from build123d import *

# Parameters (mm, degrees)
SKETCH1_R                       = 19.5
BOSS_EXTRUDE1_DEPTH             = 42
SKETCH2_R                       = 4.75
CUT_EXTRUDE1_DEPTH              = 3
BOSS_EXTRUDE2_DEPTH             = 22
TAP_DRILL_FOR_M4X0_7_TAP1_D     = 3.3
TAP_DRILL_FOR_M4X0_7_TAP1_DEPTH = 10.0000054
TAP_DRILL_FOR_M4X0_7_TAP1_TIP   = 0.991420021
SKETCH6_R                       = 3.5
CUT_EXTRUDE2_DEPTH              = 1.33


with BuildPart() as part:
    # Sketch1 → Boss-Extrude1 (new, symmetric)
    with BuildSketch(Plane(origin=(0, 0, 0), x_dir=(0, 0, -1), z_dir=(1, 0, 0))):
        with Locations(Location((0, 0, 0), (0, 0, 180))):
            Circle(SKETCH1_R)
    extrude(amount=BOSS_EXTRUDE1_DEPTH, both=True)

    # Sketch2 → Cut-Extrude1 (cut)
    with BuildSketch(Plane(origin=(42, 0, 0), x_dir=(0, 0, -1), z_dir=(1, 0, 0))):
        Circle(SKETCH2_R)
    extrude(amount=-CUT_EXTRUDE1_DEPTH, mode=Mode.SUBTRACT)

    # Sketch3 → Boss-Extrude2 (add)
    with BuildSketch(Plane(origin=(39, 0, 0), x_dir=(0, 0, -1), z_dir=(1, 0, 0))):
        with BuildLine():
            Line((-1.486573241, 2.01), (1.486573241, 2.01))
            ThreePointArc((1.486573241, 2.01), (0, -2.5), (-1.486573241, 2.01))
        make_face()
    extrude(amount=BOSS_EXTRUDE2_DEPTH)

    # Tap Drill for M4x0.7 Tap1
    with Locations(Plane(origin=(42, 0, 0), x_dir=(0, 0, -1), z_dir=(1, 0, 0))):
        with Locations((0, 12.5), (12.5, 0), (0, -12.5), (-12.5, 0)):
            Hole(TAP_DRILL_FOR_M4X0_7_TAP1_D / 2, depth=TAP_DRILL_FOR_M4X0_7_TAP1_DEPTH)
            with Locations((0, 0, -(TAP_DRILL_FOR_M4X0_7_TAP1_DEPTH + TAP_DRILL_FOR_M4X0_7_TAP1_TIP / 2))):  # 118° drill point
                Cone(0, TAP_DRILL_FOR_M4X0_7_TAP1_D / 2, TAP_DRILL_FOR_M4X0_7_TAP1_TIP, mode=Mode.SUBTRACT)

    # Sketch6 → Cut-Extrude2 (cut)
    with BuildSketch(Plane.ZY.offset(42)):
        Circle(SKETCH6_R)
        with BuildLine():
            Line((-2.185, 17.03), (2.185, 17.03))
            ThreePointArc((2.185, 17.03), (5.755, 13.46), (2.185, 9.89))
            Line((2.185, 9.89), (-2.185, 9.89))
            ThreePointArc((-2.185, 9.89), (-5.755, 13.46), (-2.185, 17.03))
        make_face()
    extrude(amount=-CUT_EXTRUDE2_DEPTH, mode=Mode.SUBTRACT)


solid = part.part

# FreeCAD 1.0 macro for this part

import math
import FreeCAD as App
import Part
import Sketcher

V = App.Vector

doc = App.newDocument("Part")
body = doc.addObject("PartDesign::Body", "Body")

# Sketch on YZ plane
sketch1 = body.newObject("Sketcher::SketchObject", "Sketch")
sketch1.AttachmentSupport = (doc.getObject("YZ_Plane"), [""])
sketch1.MapMode = "FlatFace"
sketch1.addGeometry(Part.Circle(V(0, 0, 0), V(0, 0, 1), 20), False)
sketch1.addConstraint([
    Sketcher.Constraint("Coincident", 0, 3, -1, 1),
    Sketcher.Constraint("Diameter", 0, 39.0),
])
pad1 = body.newObject("PartDesign::Pad", "Pad")
pad1.Profile = sketch1
pad1.Length = 84
pad1.Midplane = True

# Sketch on YZ plane
sketch2 = body.newObject("Sketcher::SketchObject", "Sketch001")
sketch2.AttachmentSupport = (doc.getObject("YZ_Plane"), [""])
sketch2.MapMode = "FlatFace"
sketch2.AttachmentOffset = App.Placement(V(0, 0, 42), App.Rotation())
sketch2.addGeometry(Part.Circle(V(0, 0, 0), V(0, 0, 1), 4.8), False)
sketch2.addConstraint([
    Sketcher.Constraint("Coincident", 0, 3, -1, 1),
    Sketcher.Constraint("Diameter", 0, 9.5),
])
pocket1 = body.newObject("PartDesign::Pocket", "Pocket")
pocket1.Profile = sketch2
pocket1.Length = 3

# Sketch on YZ plane
sketch3 = body.newObject("Sketcher::SketchObject", "Sketch002")
sketch3.AttachmentSupport = (doc.getObject("YZ_Plane"), [""])
sketch3.MapMode = "FlatFace"
sketch3.AttachmentOffset = App.Placement(V(0, 0, 39), App.Rotation())
sketch3.addGeometry([
    Part.LineSegment(V(2, -1.5, 0), V(2, 1.5, 0)),
    Part.ArcOfCircle(Part.Circle(V(0, 0, 0), V(0, 0, 1), 2.5), math.radians(36), math.radians(324)),
], False)
sketch3.addConstraint([
    Sketcher.Constraint("Coincident", 0, 1, 1, 2),
    Sketcher.Constraint("Coincident", 1, 1, 0, 2),
    Sketcher.Constraint("Vertical", 0),
    Sketcher.Constraint("Coincident", 1, 3, -1, 1),
    Sketcher.Constraint("Radius", 1, 2.5),
    Sketcher.Constraint("DistanceX", -1, 1, 0, 1, 2.01),
])
pad2 = body.newObject("PartDesign::Pad", "Pad001")
pad2.Profile = sketch3
pad2.Length = 22

# Sketch on YZ plane
sketch4 = body.newObject("Sketcher::SketchObject", "Sketch003")
sketch4.AttachmentSupport = (doc.getObject("YZ_Plane"), [""])
sketch4.MapMode = "FlatFace"
sketch4.AttachmentOffset = App.Placement(V(0, 0, 42), App.Rotation())
sketch4.addGeometry([
    Part.Circle(V(12.5, 0, 0), V(0, 0, 1), 1.6),
    Part.Circle(V(0, -12.5, 0), V(0, 0, 1), 1.6),
    Part.Circle(V(-12.5, 0, 0), V(0, 0, 1), 1.6),
    Part.Circle(V(0, 12.5, 0), V(0, 0, 1), 1.6),
], False)
sketch4.addConstraint([
    Sketcher.Constraint("Equal", 0, 1),
    Sketcher.Constraint("Equal", 1, 2),
    Sketcher.Constraint("Equal", 2, 3),
    Sketcher.Constraint("Symmetric", 0, 3, 2, 3, -1, 1),
    Sketcher.Constraint("Symmetric", 1, 3, 3, 3, -1, 1),
    Sketcher.Constraint("PointOnObject", 0, 3, -1),
    Sketcher.Constraint("PointOnObject", 1, 3, -2),
    Sketcher.Constraint("Diameter", 0, 3.3),
    Sketcher.Constraint("DistanceX", 2, 3, 0, 3, 25.0),
    Sketcher.Constraint("DistanceY", 1, 3, 3, 3, 25.0),
])
doc.recompute()
hole = body.newObject("PartDesign::Hole", "Hole")
hole.Profile = sketch4
hole.ThreadType = "None"
hole.Diameter = 3.3
hole.DepthType = "Dimension"
hole.Depth = 10.000005
hole.DrillPoint = "Angled"
hole.DrillPointAngle = 118

# Sketch on YZ plane
sketch5 = body.newObject("Sketcher::SketchObject", "Sketch004")
sketch5.AttachmentSupport = (doc.getObject("YZ_Plane"), [""])
sketch5.MapMode = "FlatFace"
sketch5.AttachmentOffset = App.Placement(V(0, 0, -42), App.Rotation())
sketch5.addGeometry([
    Part.Circle(V(0, 0, 0), V(0, 0, 1), 3.5),  # 0
    Part.LineSegment(V(17, 2.2, 0), V(17, -2.2, 0)),  # 1
    Part.ArcOfCircle(Part.Circle(V(13.5, -2.2, 0), V(0, 0, 1), 3.6), math.radians(180), math.radians(360)),  # 2
    Part.LineSegment(V(9.9, -2.2, 0), V(9.9, 2.2, 0)),  # 3
    Part.ArcOfCircle(Part.Circle(V(13.5, 2.2, 0), V(0, 0, 1), 3.6), math.radians(0), math.radians(180)),  # 4
], False)
sketch5.addConstraint([
    Sketcher.Constraint("Tangent", 1, 2, 2, 2),
    Sketcher.Constraint("Tangent", 2, 1, 3, 1),
    Sketcher.Constraint("Tangent", 3, 2, 4, 2),
    Sketcher.Constraint("Tangent", 4, 1, 1, 1),
    Sketcher.Constraint("Vertical", 1),
    Sketcher.Constraint("Vertical", 3),
    Sketcher.Constraint("Coincident", 0, 3, -1, 1),
    Sketcher.Constraint("Diameter", 0, 7.0),
    Sketcher.Constraint("Radius", 2, 3.57),
    Sketcher.Constraint("DistanceY", 1, 2, 1, 1, 4.37),
    Sketcher.Constraint("DistanceX", -1, 1, 2, 3, 13.46),
    Sketcher.Constraint("DistanceY", 2, 3, -1, 1, 2.185),
])
pocket2 = body.newObject("PartDesign::Pocket", "Pocket001")
pocket2.Profile = sketch5
pocket2.Length = 1.33
pocket2.Reversed = True

doc.recompute()
